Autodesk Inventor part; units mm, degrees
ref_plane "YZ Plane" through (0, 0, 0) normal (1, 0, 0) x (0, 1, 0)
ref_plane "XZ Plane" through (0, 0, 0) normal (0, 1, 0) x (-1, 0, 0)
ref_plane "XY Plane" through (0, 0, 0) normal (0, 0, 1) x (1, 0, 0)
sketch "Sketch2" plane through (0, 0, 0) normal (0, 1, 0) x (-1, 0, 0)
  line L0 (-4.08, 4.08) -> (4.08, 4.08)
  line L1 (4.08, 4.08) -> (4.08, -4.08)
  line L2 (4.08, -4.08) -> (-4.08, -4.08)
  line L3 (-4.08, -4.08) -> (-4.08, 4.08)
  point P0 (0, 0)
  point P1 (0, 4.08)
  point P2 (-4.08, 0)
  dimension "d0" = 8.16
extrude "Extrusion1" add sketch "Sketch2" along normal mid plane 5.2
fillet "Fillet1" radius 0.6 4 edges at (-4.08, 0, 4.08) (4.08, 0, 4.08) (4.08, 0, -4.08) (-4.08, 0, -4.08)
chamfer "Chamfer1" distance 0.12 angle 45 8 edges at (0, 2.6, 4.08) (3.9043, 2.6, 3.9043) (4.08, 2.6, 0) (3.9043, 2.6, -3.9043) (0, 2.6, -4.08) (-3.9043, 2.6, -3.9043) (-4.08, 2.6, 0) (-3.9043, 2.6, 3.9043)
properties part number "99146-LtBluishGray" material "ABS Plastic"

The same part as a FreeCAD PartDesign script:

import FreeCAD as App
import Part
import Sketcher
from FreeCAD import Vector


def edges_at(feature, points):
    """Names of the edges that pass closest to the given points."""
    edges = feature.Shape.Edges
    near = lambda p: min(range(len(edges)), key=lambda i: edges[i].distToShape(Part.Vertex(*p))[0])
    return sorted({f"Edge{near(p) + 1}" for p in points})


def add_polygon(sketch, points):
    """Adds a closed chain of lines whose ends are joined by coincident constraints."""
    first, n = sketch.GeometryCount, len(points)
    for a, b in zip(points, points[1:] + points[:1]):
        sketch.addGeometry(Part.LineSegment(App.Vector(*a, 0), App.Vector(*b, 0)), False)
    for i in range(n):
        sketch.addConstraint(Sketcher.Constraint("Coincident", first + i, 2, first + (i + 1) % n, 1))

doc = App.newDocument("Part")
body = doc.addObject("PartDesign::Body", "Body")

sketch1 = body.newObject("Sketcher::SketchObject", "Sketch")
sketch1.AttachmentSupport = (doc.getObject("XZ_Plane"), [""])
sketch1.MapMode = "FlatFace"
add_polygon(sketch1, [(-4.08, 4.08), (4.08, 4.08), (4.08, -4.08), (-4.08, -4.08)])
sketch1.addConstraint([
    Sketcher.Constraint("Horizontal", 0),
    Sketcher.Constraint("Vertical", 1),
    Sketcher.Constraint("Horizontal", 2),
    Sketcher.Constraint("Vertical", 3),
    Sketcher.Constraint("Symmetric", 0, 2, 2, 2, -1, 1),
    Sketcher.Constraint("Equal", 2, 1),
    Sketcher.Constraint("DistanceX", 0, 1, 0, 2, 8.16),
])
pad1 = body.newObject("PartDesign::Pad", "Pad")
pad1.Profile = sketch1
pad1.Length = 5.2
pad1.Midplane = True
doc.recompute()

fillet = body.newObject("PartDesign::Fillet", "Fillet")
fillet.Base = (pad1, edges_at(pad1, [
    (-4.08, 0, 4.08),
    (4.08, 0, 4.08),
    (4.08, 0, -4.08),
    (-4.08, 0, -4.08),
]))
fillet.Radius = 0.6
doc.recompute()

chamfer = body.newObject("PartDesign::Chamfer", "Chamfer")
chamfer.Base = (fillet, edges_at(fillet, [
    (0, 2.6, 4.08),
    (3.904, 2.6, 3.904),
    (4.08, 2.6, 0),
    (3.904, 2.6, -3.904),
    (0, 2.6, -4.08),
    (-3.904, 2.6, -3.904),
    (-4.08, 2.6, 0),
    (-3.904, 2.6, 3.904),
]))
chamfer.Size = 0.12

doc.recompute()
